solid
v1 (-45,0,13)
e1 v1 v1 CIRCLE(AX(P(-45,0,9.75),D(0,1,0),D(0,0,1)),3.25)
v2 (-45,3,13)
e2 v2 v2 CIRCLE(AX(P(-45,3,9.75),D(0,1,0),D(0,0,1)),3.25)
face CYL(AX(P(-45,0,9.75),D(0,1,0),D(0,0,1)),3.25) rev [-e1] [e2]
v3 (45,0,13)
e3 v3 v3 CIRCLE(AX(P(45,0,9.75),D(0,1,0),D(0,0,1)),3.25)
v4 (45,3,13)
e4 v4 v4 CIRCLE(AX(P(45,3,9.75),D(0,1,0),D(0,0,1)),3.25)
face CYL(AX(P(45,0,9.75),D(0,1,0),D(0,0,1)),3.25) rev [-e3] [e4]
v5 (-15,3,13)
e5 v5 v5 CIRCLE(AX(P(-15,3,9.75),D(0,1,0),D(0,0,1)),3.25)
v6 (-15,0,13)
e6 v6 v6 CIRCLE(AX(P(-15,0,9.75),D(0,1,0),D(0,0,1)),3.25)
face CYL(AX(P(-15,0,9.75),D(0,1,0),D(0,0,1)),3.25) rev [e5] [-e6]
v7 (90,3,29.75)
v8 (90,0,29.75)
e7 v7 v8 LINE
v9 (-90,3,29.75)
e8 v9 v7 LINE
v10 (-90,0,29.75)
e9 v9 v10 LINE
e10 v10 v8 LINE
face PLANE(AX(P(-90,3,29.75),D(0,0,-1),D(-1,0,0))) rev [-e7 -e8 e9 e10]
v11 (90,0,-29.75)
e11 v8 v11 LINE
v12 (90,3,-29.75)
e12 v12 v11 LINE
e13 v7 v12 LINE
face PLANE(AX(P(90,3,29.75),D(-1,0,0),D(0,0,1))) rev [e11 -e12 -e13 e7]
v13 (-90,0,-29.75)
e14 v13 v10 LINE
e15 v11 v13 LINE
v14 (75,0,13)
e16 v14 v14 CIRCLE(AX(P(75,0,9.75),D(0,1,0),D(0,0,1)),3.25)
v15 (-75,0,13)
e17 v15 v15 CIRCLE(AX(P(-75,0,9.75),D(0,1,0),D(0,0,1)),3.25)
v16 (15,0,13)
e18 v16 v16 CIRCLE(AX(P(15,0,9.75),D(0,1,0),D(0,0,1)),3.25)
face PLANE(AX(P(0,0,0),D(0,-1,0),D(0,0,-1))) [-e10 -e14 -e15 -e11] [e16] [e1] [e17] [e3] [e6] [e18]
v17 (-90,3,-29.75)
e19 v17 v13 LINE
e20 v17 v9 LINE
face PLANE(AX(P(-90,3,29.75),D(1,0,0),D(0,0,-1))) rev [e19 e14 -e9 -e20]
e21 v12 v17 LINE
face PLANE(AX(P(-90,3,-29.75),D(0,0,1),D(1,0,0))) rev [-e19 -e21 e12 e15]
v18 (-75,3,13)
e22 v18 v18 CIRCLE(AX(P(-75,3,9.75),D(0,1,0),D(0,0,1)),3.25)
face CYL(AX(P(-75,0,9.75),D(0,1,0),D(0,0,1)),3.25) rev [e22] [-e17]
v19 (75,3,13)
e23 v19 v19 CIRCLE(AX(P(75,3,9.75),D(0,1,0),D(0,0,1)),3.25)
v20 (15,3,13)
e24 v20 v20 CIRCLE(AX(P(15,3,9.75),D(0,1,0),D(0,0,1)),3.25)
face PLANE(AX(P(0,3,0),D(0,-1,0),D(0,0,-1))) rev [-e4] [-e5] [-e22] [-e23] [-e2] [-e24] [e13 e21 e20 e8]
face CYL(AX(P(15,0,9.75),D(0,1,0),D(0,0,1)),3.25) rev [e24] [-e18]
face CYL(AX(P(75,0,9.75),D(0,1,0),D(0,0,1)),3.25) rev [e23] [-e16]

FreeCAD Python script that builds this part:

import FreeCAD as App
import Part
import Sketcher
from FreeCAD import Vector

doc = App.newDocument("Part")
params = doc.addObject("Spreadsheet::Sheet", "Params")
for row, (alias, value) in enumerate([
    ("sketch1_width", "180 mm"),
    ("sketch1_height", "59.5 mm"),
    ("pad1_length", "3 mm"),
    ("sketch2_diameter", "6.5 mm"),
    ("pocket1_length", "3 mm"),
], start=1):
    params.set(f"A{row}", alias)
    params.set(f"B{row}", "=" + value)
    params.setAlias(f"B{row}", alias)

body = doc.addObject("PartDesign::Body", "Body")

# Sketch on XZ plane
sketch1 = doc.addObject("Sketcher::SketchObject", "Sketch")
body.addObject(sketch1)
sketch1.AttachmentSupport = (doc.XZ_Plane, [""])
sketch1.MapMode = "FlatFace"
sketch1.addGeometry([
    Part.LineSegment(Vector(-90, -29.75, 0), Vector(-90, 29.75, 0)),
    Part.LineSegment(Vector(-90, 29.75, 0), Vector(90, 29.75, 0)),
    Part.LineSegment(Vector(90, 29.75, 0), Vector(90, -29.75, 0)),
    Part.LineSegment(Vector(90, -29.75, 0), Vector(-90, -29.75, 0)),
], False)
sketch1.addConstraint([
    Sketcher.Constraint("Coincident", 0, 2, 1, 1),
    Sketcher.Constraint("Coincident", 1, 2, 2, 1),
    Sketcher.Constraint("Coincident", 2, 2, 3, 1),
    Sketcher.Constraint("Coincident", 3, 2, 0, 1),
    Sketcher.Constraint("Vertical", 0),
    Sketcher.Constraint("Horizontal", 1),
    Sketcher.Constraint("Vertical", 2),
    Sketcher.Constraint("Horizontal", 3),
    Sketcher.Constraint("Symmetric", 0, 2, 2, 2, -1, 1),
    Sketcher.Constraint("DistanceX", 1, 1, 1, 2, 180.0),
    Sketcher.Constraint("DistanceY", 0, 1, 0, 2, 59.5),
])
sketch1.setExpression("Constraints[9]", "Params.sketch1_width")
sketch1.setExpression("Constraints[10]", "Params.sketch1_height")
pad1 = doc.addObject("PartDesign::Pad", "Pad")
body.addObject(pad1)
pad1.Profile = sketch1
pad1.setExpression("Length", "Params.pad1_length")
pad1.Reversed = True

# Sketch on XZ plane
sketch2 = doc.addObject("Sketcher::SketchObject", "Sketch001")
body.addObject(sketch2)
sketch2.AttachmentSupport = (doc.XZ_Plane, [""])
sketch2.MapMode = "FlatFace"
sketch2.AttachmentOffset = App.Placement(Vector(0, 0, -3), App.Rotation())
sketch2.addGeometry([
    Part.Circle(Vector(-75, 9.75, 0), Vector(0, 0, 1), 3.25),  # 0
    Part.Circle(Vector(-45, 9.75, 0), Vector(0, 0, 1), 3.25),  # 1
    Part.Circle(Vector(-15, 9.75, 0), Vector(0, 0, 1), 3.25),  # 2
    Part.Circle(Vector(15, 9.75, 0), Vector(0, 0, 1), 3.25),  # 3
    Part.Circle(Vector(45, 9.75, 0), Vector(0, 0, 1), 3.25),  # 4
    Part.Circle(Vector(75, 9.75, 0), Vector(0, 0, 1), 3.25),  # 5
], False)
sketch2.addConstraint([
    Sketcher.Constraint("Equal", 0, 1),
    Sketcher.Constraint("Equal", 1, 2),
    Sketcher.Constraint("Equal", 2, 3),
    Sketcher.Constraint("Equal", 3, 4),
    Sketcher.Constraint("Equal", 4, 5),
    Sketcher.Constraint("Symmetric", 2, 3, 3, 3, -2),
    Sketcher.Constraint("Symmetric", 1, 3, 4, 3, -2),
    Sketcher.Constraint("Symmetric", 0, 3, 5, 3, -2),
    Sketcher.Constraint("Horizontal", 0, 3, 1, 3),
    Sketcher.Constraint("Horizontal", 1, 3, 2, 3),
    Sketcher.Constraint("Diameter", 0, 6.5),
    Sketcher.Constraint("DistanceX", 0, 3, -1, 1, 75.0),
    Sketcher.Constraint("DistanceX", 1, 3, -1, 1, 45.0),
    Sketcher.Constraint("DistanceX", 2, 3, -1, 1, 15.0),
    Sketcher.Constraint("DistanceY", -1, 1, 0, 3, 9.75),
])
sketch2.setExpression("Constraints[10]", "Params.sketch2_diameter")
pocket1 = doc.addObject("PartDesign::Pocket", "Pocket")
body.addObject(pocket1)
pocket1.Profile = sketch2
pocket1.setExpression("Length", "Params.pocket1_length")
pocket1.Reversed = True

doc.recompute()
